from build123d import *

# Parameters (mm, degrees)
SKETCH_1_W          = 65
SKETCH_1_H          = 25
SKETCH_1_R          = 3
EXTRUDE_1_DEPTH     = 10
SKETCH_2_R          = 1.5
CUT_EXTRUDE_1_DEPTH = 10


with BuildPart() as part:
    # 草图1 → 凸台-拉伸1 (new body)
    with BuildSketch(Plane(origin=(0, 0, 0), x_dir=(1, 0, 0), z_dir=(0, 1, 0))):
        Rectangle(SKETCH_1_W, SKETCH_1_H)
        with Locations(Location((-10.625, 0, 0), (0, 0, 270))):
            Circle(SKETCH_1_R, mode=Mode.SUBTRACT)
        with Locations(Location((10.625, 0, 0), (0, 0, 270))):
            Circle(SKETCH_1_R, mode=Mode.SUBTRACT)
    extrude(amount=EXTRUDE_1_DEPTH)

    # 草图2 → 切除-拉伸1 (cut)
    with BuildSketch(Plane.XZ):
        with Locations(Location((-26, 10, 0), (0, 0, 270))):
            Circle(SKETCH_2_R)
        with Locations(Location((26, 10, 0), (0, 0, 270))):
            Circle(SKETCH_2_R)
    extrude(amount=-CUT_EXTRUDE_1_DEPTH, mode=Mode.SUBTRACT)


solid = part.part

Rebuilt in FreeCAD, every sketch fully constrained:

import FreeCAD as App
import Part
import Sketcher


def add_polygon(sketch, points):
    """Adds a closed chain of lines whose ends are joined by coincident constraints."""
    first, n = sketch.GeometryCount, len(points)
    for a, b in zip(points, points[1:] + points[:1]):
        sketch.addGeometry(Part.LineSegment(App.Vector(*a, 0), App.Vector(*b, 0)), False)
    for i in range(n):
        sketch.addConstraint(Sketcher.Constraint("Coincident", first + i, 2, first + (i + 1) % n, 1))

doc = App.newDocument("Part")
body = doc.addObject("PartDesign::Body", "Body")

# Sketch on XZ plane
sketch1 = body.newObject("Sketcher::SketchObject", "Sketch")
sketch1.AttachmentSupport = (doc.getObject("XZ_Plane"), [""])
sketch1.MapMode = "FlatFace"
add_polygon(sketch1, [(-32.5, -12.5), (-32.5, 12.5), (32.5, 12.5), (32.5, -12.5)])  # lines 0-3
sketch1.addGeometry(Part.Circle(App.Vector(-10.6, 0, 0), App.Vector(0, 0, 1), 3), False)  # 4
sketch1.addGeometry(Part.Circle(App.Vector(10.6, 0, 0), App.Vector(0, 0, 1), 3), False)  # 5
sketch1.addConstraint([
    Sketcher.Constraint("Vertical", 0),
    Sketcher.Constraint("Horizontal", 1),
    Sketcher.Constraint("Vertical", 2),
    Sketcher.Constraint("Horizontal", 3),
    Sketcher.Constraint("Equal", 4, 5),
    Sketcher.Constraint("Symmetric", 4, 3, 5, 3, -1, 1),
    Sketcher.Constraint("Symmetric", 0, 2, 2, 2, -1, 1),
    Sketcher.Constraint("PointOnObject", 4, 3, -1),
    Sketcher.Constraint("Diameter", 4, 6.0),
    Sketcher.Constraint("DistanceX", 1, 1, 1, 2, 65.0),
    Sketcher.Constraint("DistanceY", 0, 1, 0, 2, 25.0),
    Sketcher.Constraint("DistanceX", 4, 3, 5, 3, 21.25),
])
pad1 = body.newObject("PartDesign::Pad", "Pad")
pad1.Profile = sketch1
pad1.Length = 10
pad1.Reversed = True

# Sketch on XZ plane
sketch2 = body.newObject("Sketcher::SketchObject", "Sketch001")
sketch2.AttachmentSupport = (doc.getObject("XZ_Plane"), [""])
sketch2.MapMode = "FlatFace"
sketch2.addGeometry([
    Part.Circle(App.Vector(-26, 10, 0), App.Vector(0, 0, 1), 1.5),
    Part.Circle(App.Vector(26, 10, 0), App.Vector(0, 0, 1), 1.5),
], False)
sketch2.addConstraint([
    Sketcher.Constraint("Equal", 0, 1),
    Sketcher.Constraint("Symmetric", 0, 3, 1, 3, -2),
    Sketcher.Constraint("Diameter", 0, 3.0),
    Sketcher.Constraint("DistanceX", 0, 3, -1, 1, 26.0),
    Sketcher.Constraint("DistanceY", -1, 1, 0, 3, 10.0),
])
pocket1 = body.newObject("PartDesign::Pocket", "Pocket")
pocket1.Profile = sketch2
pocket1.Length = 10

doc.recompute()
